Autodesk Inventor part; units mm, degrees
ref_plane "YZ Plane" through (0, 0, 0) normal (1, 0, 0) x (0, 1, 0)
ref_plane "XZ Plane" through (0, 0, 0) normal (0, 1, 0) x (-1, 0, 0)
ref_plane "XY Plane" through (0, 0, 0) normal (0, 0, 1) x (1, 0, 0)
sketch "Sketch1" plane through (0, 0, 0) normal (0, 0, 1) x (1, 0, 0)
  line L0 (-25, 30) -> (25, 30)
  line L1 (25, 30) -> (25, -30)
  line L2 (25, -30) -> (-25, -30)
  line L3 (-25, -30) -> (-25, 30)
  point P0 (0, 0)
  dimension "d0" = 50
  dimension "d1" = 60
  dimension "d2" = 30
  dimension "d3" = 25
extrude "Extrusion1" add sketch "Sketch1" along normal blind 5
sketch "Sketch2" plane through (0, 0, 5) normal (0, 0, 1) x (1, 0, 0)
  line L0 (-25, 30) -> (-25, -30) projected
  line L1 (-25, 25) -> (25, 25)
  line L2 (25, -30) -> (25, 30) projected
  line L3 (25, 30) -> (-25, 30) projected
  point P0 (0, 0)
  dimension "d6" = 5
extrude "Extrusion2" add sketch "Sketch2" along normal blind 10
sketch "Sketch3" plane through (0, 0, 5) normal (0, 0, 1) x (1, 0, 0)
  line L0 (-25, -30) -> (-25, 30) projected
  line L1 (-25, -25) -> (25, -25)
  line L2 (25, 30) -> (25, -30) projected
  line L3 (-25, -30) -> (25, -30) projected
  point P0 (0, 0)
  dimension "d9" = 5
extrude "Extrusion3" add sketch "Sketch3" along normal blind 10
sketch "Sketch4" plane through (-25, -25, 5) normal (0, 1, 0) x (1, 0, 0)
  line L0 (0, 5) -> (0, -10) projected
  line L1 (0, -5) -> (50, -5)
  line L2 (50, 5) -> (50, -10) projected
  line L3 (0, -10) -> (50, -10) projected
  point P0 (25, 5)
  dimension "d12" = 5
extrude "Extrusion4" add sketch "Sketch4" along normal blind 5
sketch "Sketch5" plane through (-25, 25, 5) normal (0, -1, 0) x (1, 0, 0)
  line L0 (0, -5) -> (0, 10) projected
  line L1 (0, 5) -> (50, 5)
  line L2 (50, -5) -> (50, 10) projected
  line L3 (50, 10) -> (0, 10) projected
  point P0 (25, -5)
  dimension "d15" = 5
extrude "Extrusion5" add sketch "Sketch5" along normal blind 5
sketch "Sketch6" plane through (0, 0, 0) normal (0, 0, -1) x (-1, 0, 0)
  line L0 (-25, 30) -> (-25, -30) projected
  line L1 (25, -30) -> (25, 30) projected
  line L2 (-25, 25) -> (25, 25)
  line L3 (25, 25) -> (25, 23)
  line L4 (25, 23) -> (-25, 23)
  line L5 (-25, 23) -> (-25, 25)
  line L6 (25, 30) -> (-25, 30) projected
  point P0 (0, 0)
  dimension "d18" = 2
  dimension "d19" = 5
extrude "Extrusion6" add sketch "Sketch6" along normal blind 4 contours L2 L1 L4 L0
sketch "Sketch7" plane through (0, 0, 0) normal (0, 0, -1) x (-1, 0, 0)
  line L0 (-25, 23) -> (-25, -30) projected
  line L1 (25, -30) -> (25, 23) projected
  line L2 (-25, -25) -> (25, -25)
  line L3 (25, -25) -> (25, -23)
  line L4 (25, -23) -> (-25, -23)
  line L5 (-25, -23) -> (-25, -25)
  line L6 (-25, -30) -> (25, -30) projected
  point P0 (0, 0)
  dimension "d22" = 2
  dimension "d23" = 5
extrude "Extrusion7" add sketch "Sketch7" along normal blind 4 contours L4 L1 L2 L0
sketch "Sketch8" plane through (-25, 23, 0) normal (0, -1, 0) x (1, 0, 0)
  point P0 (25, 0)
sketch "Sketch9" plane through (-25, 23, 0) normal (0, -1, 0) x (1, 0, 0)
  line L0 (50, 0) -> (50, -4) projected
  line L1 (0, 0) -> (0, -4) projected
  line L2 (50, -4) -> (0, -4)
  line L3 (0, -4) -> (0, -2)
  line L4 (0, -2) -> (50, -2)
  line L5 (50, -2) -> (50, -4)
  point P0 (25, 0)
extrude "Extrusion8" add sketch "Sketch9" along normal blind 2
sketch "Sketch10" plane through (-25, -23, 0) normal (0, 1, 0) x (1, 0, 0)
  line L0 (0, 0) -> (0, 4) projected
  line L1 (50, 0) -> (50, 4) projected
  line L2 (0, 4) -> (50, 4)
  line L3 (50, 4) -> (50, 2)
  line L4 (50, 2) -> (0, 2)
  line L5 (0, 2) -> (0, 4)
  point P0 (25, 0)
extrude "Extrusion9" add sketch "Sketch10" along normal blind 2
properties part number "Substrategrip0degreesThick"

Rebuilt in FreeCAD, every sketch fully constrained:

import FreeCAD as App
import Part
import Sketcher

V = App.Vector
Q = App.Units.Quantity


def add_polygon(sketch, points):
    """Adds a closed chain of lines whose ends are joined by coincident constraints."""
    first, n = sketch.GeometryCount, len(points)
    for a, b in zip(points, points[1:] + points[:1]):
        sketch.addGeometry(Part.LineSegment(App.Vector(*a, 0), App.Vector(*b, 0)), False)
    for i in range(n):
        sketch.addConstraint(Sketcher.Constraint("Coincident", first + i, 2, first + (i + 1) % n, 1))

doc = App.newDocument("Part")
params = doc.addObject("Spreadsheet::Sheet", "Params")
for row, (alias, value) in enumerate([
    ("sketch1_width", "50 mm"),
    ("sketch1_height", "60 mm"),
    ("pad1_length", "5 mm"),
    ("sketch2_height", "5 mm"),
    ("sketch2_width", "50 mm"),
    ("pad2_length", "10 mm"),
    ("sketch3_height", "5 mm"),
    ("sketch3_width", "50 mm"),
    ("pad3_length", "10 mm"),
    ("sketch4_height", "5 mm"),
    ("sketch4_width", "50 mm"),
    ("pad4_length", "5 mm"),
    ("sketch5_height", "5 mm"),
    ("sketch5_width", "50 mm"),
    ("pad5_length", "5 mm"),
    ("sketch6_height", "2 mm"),
    ("sketch6_width", "50 mm"),
    ("pad6_length", "4 mm"),
    ("sketch7_height", "2 mm"),
    ("sketch7_width", "50 mm"),
    ("pad7_length", "4 mm"),
    ("sketch8_width", "50 mm"),
    ("sketch8_height", "2 mm"),
    ("pad8_length", "2 mm"),
    ("sketch9_width", "50 mm"),
    ("sketch9_height", "2 mm"),
    ("pad9_length", "2 mm"),
], start=1):
    params.set(f"A{row}", alias)
    params.set(f"B{row}", "=" + value)
    params.setAlias(f"B{row}", alias)

body = doc.addObject("PartDesign::Body", "Body")

sketch1 = body.newObject("Sketcher::SketchObject", "Sketch")
sketch1.AttachmentSupport = (doc.getObject("XY_Plane"), [""])
sketch1.MapMode = "FlatFace"
add_polygon(sketch1, [(25, 30), (-25, 30), (-25, -30), (25, -30)])
sketch1.addConstraint(Sketcher.Constraint("Horizontal", 0))
sketch1.addConstraint(Sketcher.Constraint("Vertical", 1))
sketch1.addConstraint(Sketcher.Constraint("Horizontal", 2))
sketch1.addConstraint(Sketcher.Constraint("Vertical", 3))
sketch1.addConstraint(Sketcher.Constraint("Symmetric", 0, 2, 2, 2, -1, 1))
sketch1.addConstraint(Sketcher.Constraint("DistanceX", 0, 2, 0, 1, Q("50 mm")))
sketch1.addConstraint(Sketcher.Constraint("DistanceY", 1, 2, 1, 1, Q("60 mm")))
sketch1.setExpression("Constraints[9]", "Params.sketch1_width")
sketch1.setExpression("Constraints[10]", "Params.sketch1_height")
pad1 = body.newObject("PartDesign::Pad", "Pad")
pad1.Profile = sketch1
pad1.setExpression("Length", "Params.pad1_length")

sketch2 = body.newObject("Sketcher::SketchObject", "Sketch001")
sketch2.AttachmentSupport = (doc.getObject("XY_Plane"), [""])
sketch2.MapMode = "FlatFace"
sketch2.AttachmentOffset = App.Placement(V(0, 0, 5), App.Rotation())
add_polygon(sketch2, [(25, 30), (-25, 30), (-25, 25), (25, 25)])
sketch2.addConstraint(Sketcher.Constraint("Horizontal", 0))
sketch2.addConstraint(Sketcher.Constraint("Vertical", 1))
sketch2.addConstraint(Sketcher.Constraint("Horizontal", 2))
sketch2.addConstraint(Sketcher.Constraint("Vertical", 3))
sketch2.addConstraint(Sketcher.Constraint("DistanceY", 1, 2, 1, 1, Q("5 mm")))
sketch2.addConstraint(Sketcher.Constraint("DistanceX", 0, 2, 0, 1, Q("50 mm")))
sketch2.addConstraint(Sketcher.Constraint("DistanceX", 0, 2, -1, 1, Q("25 mm")))
sketch2.addConstraint(Sketcher.Constraint("DistanceY", -1, 1, 0, 2, Q("30 mm")))
sketch2.setExpression("Constraints[8]", "Params.sketch2_height")
sketch2.setExpression("Constraints[9]", "Params.sketch2_width")
pad2 = body.newObject("PartDesign::Pad", "Pad001")
pad2.Profile = sketch2
pad2.setExpression("Length", "Params.pad2_length")

sketch3 = body.newObject("Sketcher::SketchObject", "Sketch002")
sketch3.AttachmentSupport = (doc.getObject("XY_Plane"), [""])
sketch3.MapMode = "FlatFace"
sketch3.AttachmentOffset = App.Placement(V(0, 0, 5), App.Rotation())
add_polygon(sketch3, [(-25, -25), (-25, -30), (25, -30), (25, -25)])
sketch3.addConstraint(Sketcher.Constraint("Vertical", 0))
sketch3.addConstraint(Sketcher.Constraint("Horizontal", 1))
sketch3.addConstraint(Sketcher.Constraint("Vertical", 2))
sketch3.addConstraint(Sketcher.Constraint("Horizontal", 3))
sketch3.addConstraint(Sketcher.Constraint("DistanceY", 0, 2, 0, 1, Q("5 mm")))
sketch3.addConstraint(Sketcher.Constraint("DistanceX", 1, 1, 1, 2, Q("50 mm")))
sketch3.addConstraint(Sketcher.Constraint("DistanceX", 0, 2, -1, 1, Q("25 mm")))
sketch3.addConstraint(Sketcher.Constraint("DistanceY", 0, 2, -1, 1, Q("30 mm")))
sketch3.setExpression("Constraints[8]", "Params.sketch3_height")
sketch3.setExpression("Constraints[9]", "Params.sketch3_width")
pad3 = body.newObject("PartDesign::Pad", "Pad002")
pad3.Profile = sketch3
pad3.setExpression("Length", "Params.pad3_length")

sketch4 = body.newObject("Sketcher::SketchObject", "Sketch003")
sketch4.AttachmentSupport = (doc.getObject("XZ_Plane"), [""])
sketch4.MapMode = "FlatFace"
sketch4.AttachmentOffset = App.Placement(V(0, 0, 25), App.Rotation())
add_polygon(sketch4, [(25, 10), (-25, 10), (-25, 15), (25, 15)])
sketch4.addConstraint(Sketcher.Constraint("Horizontal", 0))
sketch4.addConstraint(Sketcher.Constraint("Vertical", 1))
sketch4.addConstraint(Sketcher.Constraint("Horizontal", 2))
sketch4.addConstraint(Sketcher.Constraint("Vertical", 3))
sketch4.addConstraint(Sketcher.Constraint("DistanceY", 1, 1, 1, 2, Q("5 mm")))
sketch4.addConstraint(Sketcher.Constraint("DistanceX", 0, 2, 0, 1, Q("50 mm")))
sketch4.addConstraint(Sketcher.Constraint("DistanceX", 0, 2, -1, 1, Q("25 mm")))
sketch4.addConstraint(Sketcher.Constraint("DistanceY", -1, 1, 0, 2, Q("10 mm")))
sketch4.setExpression("Constraints[8]", "Params.sketch4_height")
sketch4.setExpression("Constraints[9]", "Params.sketch4_width")
pad4 = body.newObject("PartDesign::Pad", "Pad003")
pad4.Profile = sketch4
pad4.setExpression("Length", "Params.pad4_length")
pad4.Reversed = True

sketch5 = body.newObject("Sketcher::SketchObject", "Sketch004")
sketch5.AttachmentSupport = (doc.getObject("XZ_Plane"), [""])
sketch5.MapMode = "FlatFace"
sketch5.AttachmentOffset = App.Placement(V(0, 0, -25), App.Rotation())
add_polygon(sketch5, [(-25, 15), (-25, 10), (25, 10), (25, 15)])
sketch5.addConstraint(Sketcher.Constraint("Vertical", 0))
sketch5.addConstraint(Sketcher.Constraint("Horizontal", 1))
sketch5.addConstraint(Sketcher.Constraint("Vertical", 2))
sketch5.addConstraint(Sketcher.Constraint("Horizontal", 3))
sketch5.addConstraint(Sketcher.Constraint("DistanceY", 0, 2, 0, 1, Q("5 mm")))
sketch5.addConstraint(Sketcher.Constraint("DistanceX", 1, 1, 1, 2, Q("50 mm")))
sketch5.addConstraint(Sketcher.Constraint("DistanceX", 0, 2, -1, 1, Q("25 mm")))
sketch5.addConstraint(Sketcher.Constraint("DistanceY", -1, 1, 0, 2, Q("10 mm")))
sketch5.setExpression("Constraints[8]", "Params.sketch5_height")
sketch5.setExpression("Constraints[9]", "Params.sketch5_width")
pad5 = body.newObject("PartDesign::Pad", "Pad004")
pad5.Profile = sketch5
pad5.setExpression("Length", "Params.pad5_length")

sketch6 = body.newObject("Sketcher::SketchObject", "Sketch005")
sketch6.AttachmentSupport = (doc.getObject("XY_Plane"), [""])
sketch6.MapMode = "FlatFace"
add_polygon(sketch6, [(-25, 25), (25, 25), (25, 23), (-25, 23)])
sketch6.addConstraint(Sketcher.Constraint("Horizontal", 0))
sketch6.addConstraint(Sketcher.Constraint("Vertical", 1))
sketch6.addConstraint(Sketcher.Constraint("Horizontal", 2))
sketch6.addConstraint(Sketcher.Constraint("Vertical", 3))
sketch6.addConstraint(Sketcher.Constraint("DistanceY", 1, 2, 1, 1, Q("2 mm")))
sketch6.addConstraint(Sketcher.Constraint("DistanceX", 0, 1, 0, 2, Q("50 mm")))
sketch6.addConstraint(Sketcher.Constraint("DistanceX", -1, 1, 0, 2, Q("25 mm")))
sketch6.addConstraint(Sketcher.Constraint("DistanceY", -1, 1, 0, 2, Q("25 mm")))
sketch6.setExpression("Constraints[8]", "Params.sketch6_height")
sketch6.setExpression("Constraints[9]", "Params.sketch6_width")
pad6 = body.newObject("PartDesign::Pad", "Pad005")
pad6.Profile = sketch6
pad6.setExpression("Length", "Params.pad6_length")
pad6.Reversed = True

sketch7 = body.newObject("Sketcher::SketchObject", "Sketch006")
sketch7.AttachmentSupport = (doc.getObject("XY_Plane"), [""])
sketch7.MapMode = "FlatFace"
add_polygon(sketch7, [(-25, -23), (25, -23), (25, -25), (-25, -25)])
sketch7.addConstraint(Sketcher.Constraint("Horizontal", 0))
sketch7.addConstraint(Sketcher.Constraint("Vertical", 1))
sketch7.addConstraint(Sketcher.Constraint("Horizontal", 2))
sketch7.addConstraint(Sketcher.Constraint("Vertical", 3))
sketch7.addConstraint(Sketcher.Constraint("DistanceY", 1, 2, 1, 1, Q("2 mm")))
sketch7.addConstraint(Sketcher.Constraint("DistanceX", 0, 1, 0, 2, Q("50 mm")))
sketch7.addConstraint(Sketcher.Constraint("DistanceX", -1, 1, 0, 2, Q("25 mm")))
sketch7.addConstraint(Sketcher.Constraint("DistanceY", 0, 2, -1, 1, Q("23 mm")))
sketch7.setExpression("Constraints[8]", "Params.sketch7_height")
sketch7.setExpression("Constraints[9]", "Params.sketch7_width")
pad7 = body.newObject("PartDesign::Pad", "Pad006")
pad7.Profile = sketch7
pad7.setExpression("Length", "Params.pad7_length")
pad7.Reversed = True

sketch8 = body.newObject("Sketcher::SketchObject", "Sketch007")
sketch8.AttachmentSupport = (doc.getObject("XZ_Plane"), [""])
sketch8.MapMode = "FlatFace"
sketch8.AttachmentOffset = App.Placement(V(0, 0, -23), App.Rotation())
add_polygon(sketch8, [(25, -4), (25, -2), (-25, -2), (-25, -4)])
sketch8.addConstraint(Sketcher.Constraint("Vertical", 0))
sketch8.addConstraint(Sketcher.Constraint("Horizontal", 1))
sketch8.addConstraint(Sketcher.Constraint("Vertical", 2))
sketch8.addConstraint(Sketcher.Constraint("Horizontal", 3))
sketch8.addConstraint(Sketcher.Constraint("DistanceX", 1, 2, 1, 1, Q("50 mm")))
sketch8.addConstraint(Sketcher.Constraint("DistanceY", 0, 1, 0, 2, Q("2 mm")))
sketch8.addConstraint(Sketcher.Constraint("DistanceX", -1, 1, 0, 2, Q("25 mm")))
sketch8.addConstraint(Sketcher.Constraint("DistanceY", 0, 2, -1, 1, Q("2 mm")))
sketch8.setExpression("Constraints[8]", "Params.sketch8_width")
sketch8.setExpression("Constraints[9]", "Params.sketch8_height")
pad8 = body.newObject("PartDesign::Pad", "Pad007")
pad8.Profile = sketch8
pad8.setExpression("Length", "Params.pad8_length")

sketch9 = body.newObject("Sketcher::SketchObject", "Sketch008")
sketch9.AttachmentSupport = (doc.getObject("XZ_Plane"), [""])
sketch9.MapMode = "FlatFace"
sketch9.AttachmentOffset = App.Placement(V(0, 0, 23), App.Rotation())
add_polygon(sketch9, [(-25, -4), (-25, -2), (25, -2), (25, -4)])
sketch9.addConstraint(Sketcher.Constraint("Vertical", 0))
sketch9.addConstraint(Sketcher.Constraint("Horizontal", 1))
sketch9.addConstraint(Sketcher.Constraint("Vertical", 2))
sketch9.addConstraint(Sketcher.Constraint("Horizontal", 3))
sketch9.addConstraint(Sketcher.Constraint("DistanceX", 1, 1, 1, 2, Q("50 mm")))
sketch9.addConstraint(Sketcher.Constraint("DistanceY", 0, 1, 0, 2, Q("2 mm")))
sketch9.addConstraint(Sketcher.Constraint("DistanceX", 0, 2, -1, 1, Q("25 mm")))
sketch9.addConstraint(Sketcher.Constraint("DistanceY", 0, 2, -1, 1, Q("2 mm")))
sketch9.setExpression("Constraints[8]", "Params.sketch9_width")
sketch9.setExpression("Constraints[9]", "Params.sketch9_height")
pad9 = body.newObject("PartDesign::Pad", "Pad008")
pad9.Profile = sketch9
pad9.setExpression("Length", "Params.pad9_length")
pad9.Reversed = True

doc.recompute()
